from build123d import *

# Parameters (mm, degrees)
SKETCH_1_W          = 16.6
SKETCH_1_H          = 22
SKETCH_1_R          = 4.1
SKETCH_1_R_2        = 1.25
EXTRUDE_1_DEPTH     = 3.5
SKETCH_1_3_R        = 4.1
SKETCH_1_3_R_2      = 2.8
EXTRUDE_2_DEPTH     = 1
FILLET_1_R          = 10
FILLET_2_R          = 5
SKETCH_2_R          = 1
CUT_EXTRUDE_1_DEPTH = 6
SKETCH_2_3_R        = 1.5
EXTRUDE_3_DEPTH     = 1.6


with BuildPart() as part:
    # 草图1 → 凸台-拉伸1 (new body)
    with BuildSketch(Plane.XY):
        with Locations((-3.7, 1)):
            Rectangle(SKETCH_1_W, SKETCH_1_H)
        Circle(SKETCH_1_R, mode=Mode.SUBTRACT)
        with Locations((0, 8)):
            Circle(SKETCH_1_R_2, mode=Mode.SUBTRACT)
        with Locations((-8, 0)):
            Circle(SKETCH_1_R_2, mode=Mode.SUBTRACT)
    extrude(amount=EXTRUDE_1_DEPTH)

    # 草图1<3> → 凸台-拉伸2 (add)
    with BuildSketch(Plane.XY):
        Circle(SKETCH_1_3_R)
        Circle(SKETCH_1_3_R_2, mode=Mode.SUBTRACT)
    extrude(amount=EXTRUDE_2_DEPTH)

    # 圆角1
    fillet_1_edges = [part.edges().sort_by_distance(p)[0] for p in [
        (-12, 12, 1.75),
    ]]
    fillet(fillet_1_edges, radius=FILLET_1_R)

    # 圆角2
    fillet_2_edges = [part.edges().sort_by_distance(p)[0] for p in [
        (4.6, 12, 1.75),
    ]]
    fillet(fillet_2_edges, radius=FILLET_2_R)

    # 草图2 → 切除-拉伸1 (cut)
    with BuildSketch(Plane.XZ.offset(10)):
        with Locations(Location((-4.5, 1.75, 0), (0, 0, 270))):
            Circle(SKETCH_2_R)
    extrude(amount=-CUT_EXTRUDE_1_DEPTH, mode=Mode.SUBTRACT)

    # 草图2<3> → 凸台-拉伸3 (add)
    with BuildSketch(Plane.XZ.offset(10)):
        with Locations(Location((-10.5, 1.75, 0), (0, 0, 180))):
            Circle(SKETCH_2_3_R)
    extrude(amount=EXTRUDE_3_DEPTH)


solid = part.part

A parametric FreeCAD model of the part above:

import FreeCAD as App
import Part
import Sketcher
from FreeCAD import Vector
Q = App.Units.Quantity


def edges_at(feature, points):
    """Names of the edges that pass closest to the given points."""
    edges = feature.Shape.Edges
    near = lambda p: min(range(len(edges)), key=lambda i: edges[i].distToShape(Part.Vertex(*p))[0])
    return sorted({f"Edge{near(p) + 1}" for p in points})

doc = App.newDocument("Part")
params = doc.addObject("Spreadsheet::Sheet", "Params")
for row, (alias, value) in enumerate([
    ("sketch1_diameter", "2.5 mm"),
    ("sketch1_diameter2", "8.2 mm"),
    ("sketch1_height", "22 mm"),
    ("sketch1_width", "16.6 mm"),
    ("pad1_length", "3.5 mm"),
    ("sketch2_diameter", "8.2 mm"),
    ("sketch2_diameter2", "5.6 mm"),
    ("pad2_length", "1 mm"),
    ("fillet_radius", "10 mm"),
    ("fillet2_radius", "5 mm"),
    ("sketch3_diameter", "2 mm"),
    ("pocket1_length", "6 mm"),
    ("sketch4_diameter", "3 mm"),
    ("pad3_length", "1.6 mm"),
], start=1):
    params.set(f"A{row}", alias)
    params.set(f"B{row}", "=" + value)
    params.setAlias(f"B{row}", alias)

body = doc.addObject("PartDesign::Body", "Body")

sketch1 = body.newObject("Sketcher::SketchObject", "Sketch")
sketch1.AttachmentSupport = (doc.getObject("XY_Plane"), [""])
sketch1.MapMode = "FlatFace"
sketch1.addGeometry([
    Part.LineSegment(Vector(-12, 12, 0), Vector(-12, -10, 0)),
    Part.LineSegment(Vector(-12, -10, 0), Vector(4.6, -10, 0)),
    Part.LineSegment(Vector(4.6, -10, 0), Vector(4.6, 12, 0)),
    Part.LineSegment(Vector(4.6, 12, 0), Vector(-12, 12, 0)),
    Part.Circle(Vector(-8, 0, 0), Vector(0, 0, 1), 1.25),
    Part.Circle(Vector(0, 0, 0), Vector(0, 0, 1), 4.1),
    Part.Circle(Vector(0, 8, 0), Vector(0, 0, 1), 1.25),
], False)
sketch1.addConstraint([
    Sketcher.Constraint("Coincident", 0, 2, 1, 1),
    Sketcher.Constraint("Coincident", 1, 2, 2, 1),
    Sketcher.Constraint("Coincident", 2, 2, 3, 1),
    Sketcher.Constraint("Coincident", 3, 2, 0, 1),
    Sketcher.Constraint("Vertical", 0),
    Sketcher.Constraint("Horizontal", 1),
    Sketcher.Constraint("Vertical", 2),
    Sketcher.Constraint("Horizontal", 3),
    Sketcher.Constraint("Coincident", 5, 3, -1, 1),
    Sketcher.Constraint("Equal", 4, 6),
    Sketcher.Constraint("PointOnObject", 4, 3, -1),
    Sketcher.Constraint("PointOnObject", 6, 3, -2),
    Sketcher.Constraint("Diameter", 4, Q("2.5 mm")),
    Sketcher.Constraint("Diameter", 5, Q("8.2 mm")),
    Sketcher.Constraint("DistanceY", 0, 2, 0, 1, Q("22 mm")),
    Sketcher.Constraint("DistanceX", 1, 1, 1, 2, Q("16.6 mm")),
    Sketcher.Constraint("DistanceX", 4, 3, -1, 1, Q("8 mm")),
    Sketcher.Constraint("DistanceY", -1, 1, 6, 3, Q("8 mm")),
    Sketcher.Constraint("DistanceX", 0, 2, -1, 1, Q("12 mm")),
    Sketcher.Constraint("DistanceY", 0, 2, -1, 1, Q("10 mm")),
])
sketch1.setExpression("Constraints[12]", "Params.sketch1_diameter")
sketch1.setExpression("Constraints[13]", "Params.sketch1_diameter2")
sketch1.setExpression("Constraints[14]", "Params.sketch1_height")
sketch1.setExpression("Constraints[15]", "Params.sketch1_width")
pad1 = body.newObject("PartDesign::Pad", "Pad")
pad1.Profile = sketch1
pad1.setExpression("Length", "Params.pad1_length")

sketch2 = body.newObject("Sketcher::SketchObject", "Sketch001")
sketch2.AttachmentSupport = (doc.getObject("XY_Plane"), [""])
sketch2.MapMode = "FlatFace"
sketch2.addGeometry([
    Part.Circle(Vector(0, 0, 0), Vector(0, 0, 1), 4.1),
    Part.Circle(Vector(0, 0, 0), Vector(0, 0, 1), 2.8),
], False)
sketch2.addConstraint([
    Sketcher.Constraint("Coincident", 0, 3, -1, 1),
    Sketcher.Constraint("Coincident", 1, 3, -1, 1),
    Sketcher.Constraint("Diameter", 0, Q("8.2 mm")),
    Sketcher.Constraint("Diameter", 1, Q("5.6 mm")),
])
sketch2.setExpression("Constraints[2]", "Params.sketch2_diameter")
sketch2.setExpression("Constraints[3]", "Params.sketch2_diameter2")
pad2 = body.newObject("PartDesign::Pad", "Pad001")
pad2.Profile = sketch2
pad2.setExpression("Length", "Params.pad2_length")
doc.recompute()

fillet = body.newObject("PartDesign::Fillet", "Fillet")
fillet.Base = (pad2, edges_at(pad2, [(-12, 12, 1.75)]))
fillet.setExpression("Radius", "Params.fillet_radius")
doc.recompute()

fillet2 = body.newObject("PartDesign::Fillet", "Fillet001")
fillet2.Base = (fillet, edges_at(fillet, [(4.6, 12, 1.75)]))
fillet2.setExpression("Radius", "Params.fillet2_radius")

sketch3 = body.newObject("Sketcher::SketchObject", "Sketch002")
sketch3.AttachmentSupport = (doc.getObject("XZ_Plane"), [""])
sketch3.MapMode = "FlatFace"
sketch3.AttachmentOffset = App.Placement(Vector(0, 0, 10), App.Rotation())
sketch3.addGeometry(Part.Circle(Vector(-4.5, 1.75, 0), Vector(0, 0, 1), 1), False)
sketch3.addConstraint([
    Sketcher.Constraint("Diameter", 0, Q("2 mm")),
    Sketcher.Constraint("DistanceX", 0, 3, -1, 1, Q("4.5 mm")),
    Sketcher.Constraint("DistanceY", -1, 1, 0, 3, Q("1.75 mm")),
])
sketch3.setExpression("Constraints[0]", "Params.sketch3_diameter")
pocket1 = body.newObject("PartDesign::Pocket", "Pocket")
pocket1.Profile = sketch3
pocket1.setExpression("Length", "Params.pocket1_length")

sketch4 = body.newObject("Sketcher::SketchObject", "Sketch003")
sketch4.AttachmentSupport = (doc.getObject("XZ_Plane"), [""])
sketch4.MapMode = "FlatFace"
sketch4.AttachmentOffset = App.Placement(Vector(0, 0, 10), App.Rotation())
sketch4.addGeometry(Part.Circle(Vector(-10.5, 1.75, 0), Vector(0, 0, 1), 1.5), False)
sketch4.addConstraint([
    Sketcher.Constraint("Diameter", 0, Q("3 mm")),
    Sketcher.Constraint("DistanceX", 0, 3, -1, 1, Q("10.5 mm")),
    Sketcher.Constraint("DistanceY", -1, 1, 0, 3, Q("1.75 mm")),
])
sketch4.setExpression("Constraints[0]", "Params.sketch4_diameter")
pad3 = body.newObject("PartDesign::Pad", "Pad002")
pad3.Profile = sketch4
pad3.setExpression("Length", "Params.pad3_length")

doc.recompute()
